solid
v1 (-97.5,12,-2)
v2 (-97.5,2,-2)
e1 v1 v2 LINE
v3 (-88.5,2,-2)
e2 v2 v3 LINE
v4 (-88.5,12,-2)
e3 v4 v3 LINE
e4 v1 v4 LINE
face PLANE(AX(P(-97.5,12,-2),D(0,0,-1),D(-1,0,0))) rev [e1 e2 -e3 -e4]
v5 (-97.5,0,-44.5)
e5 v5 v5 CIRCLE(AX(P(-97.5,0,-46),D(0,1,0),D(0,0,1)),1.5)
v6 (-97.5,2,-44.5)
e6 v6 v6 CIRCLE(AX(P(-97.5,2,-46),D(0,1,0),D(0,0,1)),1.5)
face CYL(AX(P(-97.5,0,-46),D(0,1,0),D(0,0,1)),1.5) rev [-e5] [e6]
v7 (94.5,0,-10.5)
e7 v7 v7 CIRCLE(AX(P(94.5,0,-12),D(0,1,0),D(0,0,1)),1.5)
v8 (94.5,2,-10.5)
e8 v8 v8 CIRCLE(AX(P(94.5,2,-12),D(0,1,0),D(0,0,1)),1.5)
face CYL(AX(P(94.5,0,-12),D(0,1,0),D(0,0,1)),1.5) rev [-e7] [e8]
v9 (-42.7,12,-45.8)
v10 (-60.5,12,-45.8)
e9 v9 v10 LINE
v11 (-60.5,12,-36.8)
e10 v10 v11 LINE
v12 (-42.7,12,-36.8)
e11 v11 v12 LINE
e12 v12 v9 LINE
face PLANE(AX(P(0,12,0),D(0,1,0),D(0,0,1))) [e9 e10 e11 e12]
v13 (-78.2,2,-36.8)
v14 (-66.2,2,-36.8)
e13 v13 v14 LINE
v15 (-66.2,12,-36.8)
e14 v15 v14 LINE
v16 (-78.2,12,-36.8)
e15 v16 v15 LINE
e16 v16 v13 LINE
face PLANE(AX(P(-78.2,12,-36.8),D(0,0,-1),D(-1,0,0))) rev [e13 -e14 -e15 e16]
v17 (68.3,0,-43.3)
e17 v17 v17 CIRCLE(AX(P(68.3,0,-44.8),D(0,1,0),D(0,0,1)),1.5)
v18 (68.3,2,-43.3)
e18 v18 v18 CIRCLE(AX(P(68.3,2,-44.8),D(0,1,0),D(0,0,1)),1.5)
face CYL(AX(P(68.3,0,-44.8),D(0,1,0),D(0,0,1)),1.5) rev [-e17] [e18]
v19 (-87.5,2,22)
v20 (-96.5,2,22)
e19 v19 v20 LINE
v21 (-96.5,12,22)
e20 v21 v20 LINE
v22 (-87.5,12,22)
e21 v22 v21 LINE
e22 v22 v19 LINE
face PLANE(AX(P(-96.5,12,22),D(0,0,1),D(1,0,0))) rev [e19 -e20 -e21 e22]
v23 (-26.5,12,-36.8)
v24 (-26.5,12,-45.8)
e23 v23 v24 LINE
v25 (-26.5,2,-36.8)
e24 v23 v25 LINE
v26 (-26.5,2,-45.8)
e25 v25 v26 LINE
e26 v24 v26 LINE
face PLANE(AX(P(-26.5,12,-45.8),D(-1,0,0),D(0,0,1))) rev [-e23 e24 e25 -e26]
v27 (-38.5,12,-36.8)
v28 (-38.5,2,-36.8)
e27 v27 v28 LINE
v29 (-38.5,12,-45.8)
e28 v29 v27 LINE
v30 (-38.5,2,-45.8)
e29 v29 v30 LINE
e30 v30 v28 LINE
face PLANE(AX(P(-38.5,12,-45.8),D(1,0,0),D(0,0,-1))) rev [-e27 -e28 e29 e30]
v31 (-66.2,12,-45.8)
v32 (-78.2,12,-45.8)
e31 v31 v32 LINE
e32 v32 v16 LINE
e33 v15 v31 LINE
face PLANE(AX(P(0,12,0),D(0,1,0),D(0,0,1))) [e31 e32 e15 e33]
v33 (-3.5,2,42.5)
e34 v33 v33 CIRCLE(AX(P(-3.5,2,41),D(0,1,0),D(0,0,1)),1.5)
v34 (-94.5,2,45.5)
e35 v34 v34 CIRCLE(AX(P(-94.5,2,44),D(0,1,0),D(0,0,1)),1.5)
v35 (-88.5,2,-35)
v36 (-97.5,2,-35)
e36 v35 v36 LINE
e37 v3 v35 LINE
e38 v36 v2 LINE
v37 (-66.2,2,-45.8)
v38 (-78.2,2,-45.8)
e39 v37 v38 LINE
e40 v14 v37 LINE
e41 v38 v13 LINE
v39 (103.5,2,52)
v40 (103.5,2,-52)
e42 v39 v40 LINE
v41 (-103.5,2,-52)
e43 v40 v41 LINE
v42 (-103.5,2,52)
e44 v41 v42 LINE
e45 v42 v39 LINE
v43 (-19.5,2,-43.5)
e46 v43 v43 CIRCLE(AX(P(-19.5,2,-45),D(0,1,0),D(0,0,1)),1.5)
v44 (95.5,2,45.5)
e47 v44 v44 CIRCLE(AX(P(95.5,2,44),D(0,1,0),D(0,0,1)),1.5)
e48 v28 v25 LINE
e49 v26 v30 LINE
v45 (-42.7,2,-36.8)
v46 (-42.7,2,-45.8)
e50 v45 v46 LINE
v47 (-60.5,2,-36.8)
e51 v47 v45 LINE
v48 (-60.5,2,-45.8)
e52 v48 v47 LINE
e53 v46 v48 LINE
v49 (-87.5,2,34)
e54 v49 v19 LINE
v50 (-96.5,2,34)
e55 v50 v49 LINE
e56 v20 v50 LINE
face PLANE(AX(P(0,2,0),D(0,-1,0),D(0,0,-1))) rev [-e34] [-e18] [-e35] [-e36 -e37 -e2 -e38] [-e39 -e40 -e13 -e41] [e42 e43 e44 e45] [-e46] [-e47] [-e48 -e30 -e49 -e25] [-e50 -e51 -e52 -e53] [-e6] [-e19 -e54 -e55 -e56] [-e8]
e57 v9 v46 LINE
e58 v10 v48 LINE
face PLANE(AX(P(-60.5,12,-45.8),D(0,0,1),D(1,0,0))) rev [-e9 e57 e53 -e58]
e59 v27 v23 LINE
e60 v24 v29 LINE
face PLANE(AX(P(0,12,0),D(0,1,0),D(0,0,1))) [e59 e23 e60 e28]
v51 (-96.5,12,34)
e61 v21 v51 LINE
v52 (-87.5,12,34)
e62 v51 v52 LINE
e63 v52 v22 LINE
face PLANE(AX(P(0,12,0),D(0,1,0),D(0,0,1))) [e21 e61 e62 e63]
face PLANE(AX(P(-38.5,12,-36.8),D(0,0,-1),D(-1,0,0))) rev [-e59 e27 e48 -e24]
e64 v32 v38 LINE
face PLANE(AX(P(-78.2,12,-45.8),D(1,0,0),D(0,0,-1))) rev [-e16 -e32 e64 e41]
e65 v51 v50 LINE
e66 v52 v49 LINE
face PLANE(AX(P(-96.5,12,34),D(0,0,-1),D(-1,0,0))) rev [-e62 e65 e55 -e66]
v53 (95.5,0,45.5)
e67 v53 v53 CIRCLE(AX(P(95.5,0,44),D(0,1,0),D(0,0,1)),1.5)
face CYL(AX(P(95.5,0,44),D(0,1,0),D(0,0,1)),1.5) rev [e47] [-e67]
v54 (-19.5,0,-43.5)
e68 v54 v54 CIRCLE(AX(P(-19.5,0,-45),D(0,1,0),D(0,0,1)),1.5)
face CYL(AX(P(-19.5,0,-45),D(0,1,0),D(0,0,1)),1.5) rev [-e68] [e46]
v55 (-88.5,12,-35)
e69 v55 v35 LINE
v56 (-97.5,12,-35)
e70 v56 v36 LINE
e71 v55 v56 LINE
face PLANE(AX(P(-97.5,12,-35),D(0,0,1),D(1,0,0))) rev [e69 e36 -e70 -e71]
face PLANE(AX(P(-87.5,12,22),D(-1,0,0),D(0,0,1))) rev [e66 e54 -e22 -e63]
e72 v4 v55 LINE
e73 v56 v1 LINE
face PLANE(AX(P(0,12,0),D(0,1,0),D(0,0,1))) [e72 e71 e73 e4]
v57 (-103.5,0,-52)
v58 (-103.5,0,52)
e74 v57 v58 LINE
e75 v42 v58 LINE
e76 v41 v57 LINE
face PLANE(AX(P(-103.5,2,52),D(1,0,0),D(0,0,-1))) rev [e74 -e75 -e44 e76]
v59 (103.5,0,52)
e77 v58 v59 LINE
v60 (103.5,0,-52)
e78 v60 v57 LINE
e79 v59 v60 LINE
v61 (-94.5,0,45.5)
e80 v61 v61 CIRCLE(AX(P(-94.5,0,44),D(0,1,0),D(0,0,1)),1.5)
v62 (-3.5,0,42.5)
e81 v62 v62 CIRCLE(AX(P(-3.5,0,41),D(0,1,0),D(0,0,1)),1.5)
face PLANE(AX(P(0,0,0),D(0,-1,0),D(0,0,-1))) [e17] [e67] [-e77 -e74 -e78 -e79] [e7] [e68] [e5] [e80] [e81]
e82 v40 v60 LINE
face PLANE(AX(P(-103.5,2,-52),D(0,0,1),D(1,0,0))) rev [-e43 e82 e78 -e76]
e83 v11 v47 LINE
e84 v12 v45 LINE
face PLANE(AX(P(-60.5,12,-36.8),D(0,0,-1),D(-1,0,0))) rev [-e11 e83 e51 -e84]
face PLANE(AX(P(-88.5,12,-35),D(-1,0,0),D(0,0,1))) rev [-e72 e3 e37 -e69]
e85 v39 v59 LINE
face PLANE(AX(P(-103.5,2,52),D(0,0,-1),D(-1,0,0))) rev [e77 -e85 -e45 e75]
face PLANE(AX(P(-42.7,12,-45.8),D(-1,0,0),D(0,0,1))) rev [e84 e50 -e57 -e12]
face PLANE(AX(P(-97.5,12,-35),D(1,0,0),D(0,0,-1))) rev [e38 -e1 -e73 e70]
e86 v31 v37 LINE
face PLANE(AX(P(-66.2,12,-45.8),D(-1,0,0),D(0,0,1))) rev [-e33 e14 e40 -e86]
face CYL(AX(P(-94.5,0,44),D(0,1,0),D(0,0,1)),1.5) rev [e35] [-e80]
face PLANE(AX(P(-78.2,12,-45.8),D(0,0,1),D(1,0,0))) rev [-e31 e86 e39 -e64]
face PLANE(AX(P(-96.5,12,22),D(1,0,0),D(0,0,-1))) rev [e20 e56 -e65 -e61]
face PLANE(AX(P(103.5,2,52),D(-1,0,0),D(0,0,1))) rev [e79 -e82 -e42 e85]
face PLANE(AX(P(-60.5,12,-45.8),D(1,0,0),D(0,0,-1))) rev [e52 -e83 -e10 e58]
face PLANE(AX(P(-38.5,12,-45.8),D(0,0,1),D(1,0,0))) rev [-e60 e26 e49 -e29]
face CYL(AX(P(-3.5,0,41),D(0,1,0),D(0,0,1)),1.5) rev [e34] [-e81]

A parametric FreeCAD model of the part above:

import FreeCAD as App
import Part
import Sketcher

doc = App.newDocument("Part")
body = doc.addObject("PartDesign::Body", "Body")

sketch1 = doc.addObject("Sketcher::SketchObject", "Sketch")
body.addObject(sketch1)
sketch1.AttachmentSupport = (doc.XZ_Plane, [""])
sketch1.MapMode = "FlatFace"
sketch1.addGeometry([
    Part.LineSegment(App.Vector(-103.5, -52, 0), App.Vector(-103.5, 52, 0)),
    Part.LineSegment(App.Vector(-103.5, 52, 0), App.Vector(103.5, 52, 0)),
    Part.LineSegment(App.Vector(103.5, 52, 0), App.Vector(103.5, -52, 0)),
    Part.LineSegment(App.Vector(103.5, -52, 0), App.Vector(-103.5, -52, 0)),
], False)
sketch1.addConstraint([
    Sketcher.Constraint("Coincident", 0, 2, 1, 1),
    Sketcher.Constraint("Coincident", 1, 2, 2, 1),
    Sketcher.Constraint("Coincident", 2, 2, 3, 1),
    Sketcher.Constraint("Coincident", 3, 2, 0, 1),
    Sketcher.Constraint("Vertical", 0),
    Sketcher.Constraint("Horizontal", 1),
    Sketcher.Constraint("Vertical", 2),
    Sketcher.Constraint("Horizontal", 3),
    Sketcher.Constraint("Symmetric", 0, 2, 2, 2, -1, 1),
    Sketcher.Constraint("DistanceX", 1, 1, 1, 2, 207.0),
    Sketcher.Constraint("DistanceY", 0, 1, 0, 2, 104.0),
])
pad1 = doc.addObject("PartDesign::Pad", "Pad")
body.addObject(pad1)
pad1.Profile = sketch1
pad1.Length = 2
pad1.Reversed = True

sketch2 = doc.addObject("Sketcher::SketchObject", "Sketch001")
body.addObject(sketch2)
sketch2.AttachmentSupport = (doc.XZ_Plane, [""])
sketch2.MapMode = "FlatFace"
sketch2.AttachmentOffset = App.Placement(App.Vector(0, 0, -2), App.Rotation())
sketch2.addGeometry([
    Part.Circle(App.Vector(-97.5, -46, 0), App.Vector(0, 0, 1), 1.5),
    Part.Circle(App.Vector(-19.5, -45, 0), App.Vector(0, 0, 1), 1.5),
    Part.Circle(App.Vector(68.3, -44.8, 0), App.Vector(0, 0, 1), 1.5),
    Part.Circle(App.Vector(94.5, -12, 0), App.Vector(0, 0, 1), 1.5),
    Part.Circle(App.Vector(95.5, 44, 0), App.Vector(0, 0, 1), 1.5),
    Part.Circle(App.Vector(-3.5, 41, 0), App.Vector(0, 0, 1), 1.5),
    Part.Circle(App.Vector(-94.5, 44, 0), App.Vector(0, 0, 1), 1.5),
], False)
sketch2.addConstraint([
    Sketcher.Constraint("Equal", 0, 1),
    Sketcher.Constraint("Equal", 1, 2),
    Sketcher.Constraint("Equal", 2, 3),
    Sketcher.Constraint("Equal", 3, 4),
    Sketcher.Constraint("Equal", 4, 5),
    Sketcher.Constraint("Equal", 5, 6),
    Sketcher.Constraint("Horizontal", 4, 3, 6, 3),
    Sketcher.Constraint("Diameter", 0, 3.0),
    Sketcher.Constraint("DistanceY", 0, 3, -1, 1, 46.0),
    Sketcher.Constraint("DistanceY", 1, 3, -1, 1, 45.0),
    Sketcher.Constraint("DistanceY", 3, 3, -1, 1, 12.0),
    Sketcher.Constraint("DistanceY", -1, 1, 4, 3, 44.0),
    Sketcher.Constraint("DistanceY", -1, 1, 5, 3, 41.0),
    Sketcher.Constraint("DistanceX", 0, 3, 1, 3, 78.0),
    Sketcher.Constraint("DistanceX", 1, 3, 3, 3, 114.0),
    Sketcher.Constraint("DistanceX", 3, 3, 4, 3, 1.0),
    Sketcher.Constraint("DistanceX", 1, 3, 5, 3, 16.0),
    Sketcher.Constraint("DistanceX", 0, 3, 6, 3, 3.0),
    Sketcher.Constraint("DistanceX", 0, 3, -1, 1, 97.5),
    Sketcher.Constraint("DistanceX", -1, 1, 2, 3, 68.3),
    Sketcher.Constraint("DistanceY", 2, 3, -1, 1, 44.8),
])
pocket1 = doc.addObject("PartDesign::Pocket", "Pocket")
body.addObject(pocket1)
pocket1.Profile = sketch2
pocket1.Type = "ThroughAll"
pocket1.Reversed = True

sketch3 = doc.addObject("Sketcher::SketchObject", "Sketch002")
body.addObject(sketch3)
sketch3.AttachmentSupport = (doc.XZ_Plane, [""])
sketch3.MapMode = "FlatFace"
sketch3.AttachmentOffset = App.Placement(App.Vector(0, 0, -2), App.Rotation())
sketch3.addGeometry([
    Part.LineSegment(App.Vector(-97.5, -35, 0), App.Vector(-97.5, -2, 0)),
    Part.LineSegment(App.Vector(-97.5, -2, 0), App.Vector(-88.5, -2, 0)),
    Part.LineSegment(App.Vector(-88.5, -2, 0), App.Vector(-88.5, -35, 0)),
    Part.LineSegment(App.Vector(-88.5, -35, 0), App.Vector(-97.5, -35, 0)),
    Part.LineSegment(App.Vector(-96.5, 22, 0), App.Vector(-96.5, 34, 0)),
    Part.LineSegment(App.Vector(-96.5, 34, 0), App.Vector(-87.5, 34, 0)),
    Part.LineSegment(App.Vector(-87.5, 34, 0), App.Vector(-87.5, 22, 0)),
    Part.LineSegment(App.Vector(-87.5, 22, 0), App.Vector(-96.5, 22, 0)),
    Part.LineSegment(App.Vector(-78.2, -45.8, 0), App.Vector(-78.2, -36.8, 0)),
    Part.LineSegment(App.Vector(-78.2, -36.8, 0), App.Vector(-66.2, -36.8, 0)),
    Part.LineSegment(App.Vector(-66.2, -36.8, 0), App.Vector(-66.2, -45.8, 0)),
    Part.LineSegment(App.Vector(-66.2, -45.8, 0), App.Vector(-78.2, -45.8, 0)),
    Part.LineSegment(App.Vector(-60.5, -45.8, 0), App.Vector(-60.5, -36.8, 0)),
    Part.LineSegment(App.Vector(-60.5, -36.8, 0), App.Vector(-42.7, -36.8, 0)),
    Part.LineSegment(App.Vector(-42.7, -36.8, 0), App.Vector(-42.7, -45.8, 0)),
    Part.LineSegment(App.Vector(-42.7, -45.8, 0), App.Vector(-60.5, -45.8, 0)),
    Part.LineSegment(App.Vector(-38.5, -45.8, 0), App.Vector(-38.5, -36.8, 0)),
    Part.LineSegment(App.Vector(-38.5, -36.8, 0), App.Vector(-26.5, -36.8, 0)),
    Part.LineSegment(App.Vector(-26.5, -36.8, 0), App.Vector(-26.5, -45.8, 0)),
    Part.LineSegment(App.Vector(-26.5, -45.8, 0), App.Vector(-38.5, -45.8, 0)),
], False)
sketch3.addConstraint([
    Sketcher.Constraint("Coincident", 0, 2, 1, 1),
    Sketcher.Constraint("Coincident", 1, 2, 2, 1),
    Sketcher.Constraint("Coincident", 2, 2, 3, 1),
    Sketcher.Constraint("Coincident", 3, 2, 0, 1),
    Sketcher.Constraint("Coincident", 4, 2, 5, 1),
    Sketcher.Constraint("Coincident", 5, 2, 6, 1),
    Sketcher.Constraint("Coincident", 6, 2, 7, 1),
    Sketcher.Constraint("Coincident", 7, 2, 4, 1),
    Sketcher.Constraint("Coincident", 8, 2, 9, 1),
    Sketcher.Constraint("Coincident", 9, 2, 10, 1),
    Sketcher.Constraint("Coincident", 10, 2, 11, 1),
    Sketcher.Constraint("Coincident", 11, 2, 8, 1),
    Sketcher.Constraint("Coincident", 12, 2, 13, 1),
    Sketcher.Constraint("Coincident", 13, 2, 14, 1),
    Sketcher.Constraint("Coincident", 14, 2, 15, 1),
    Sketcher.Constraint("Coincident", 15, 2, 12, 1),
    Sketcher.Constraint("Coincident", 16, 2, 17, 1),
    Sketcher.Constraint("Coincident", 17, 2, 18, 1),
    Sketcher.Constraint("Coincident", 18, 2, 19, 1),
    Sketcher.Constraint("Coincident", 19, 2, 16, 1),
    Sketcher.Constraint("Vertical", 0),
    Sketcher.Constraint("Horizontal", 1),
    Sketcher.Constraint("Vertical", 2),
    Sketcher.Constraint("Horizontal", 3),
    Sketcher.Constraint("Vertical", 4),
    Sketcher.Constraint("Horizontal", 5),
    Sketcher.Constraint("Vertical", 6),
    Sketcher.Constraint("Horizontal", 7),
    Sketcher.Constraint("Vertical", 8),
    Sketcher.Constraint("Horizontal", 9),
    Sketcher.Constraint("Vertical", 10),
    Sketcher.Constraint("Horizontal", 11),
    Sketcher.Constraint("Vertical", 12),
    Sketcher.Constraint("Horizontal", 13),
    Sketcher.Constraint("Vertical", 14),
    Sketcher.Constraint("Horizontal", 15),
    Sketcher.Constraint("Vertical", 16),
    Sketcher.Constraint("Horizontal", 17),
    Sketcher.Constraint("Vertical", 18),
    Sketcher.Constraint("Horizontal", 19),
    Sketcher.Constraint("Horizontal", 9, 2, 12, 2),
    Sketcher.Constraint("Horizontal", 11, 2, 14, 2),
    Sketcher.Constraint("Horizontal", 13, 2, 16, 2),
    Sketcher.Constraint("Horizontal", 15, 2, 18, 2),
    Sketcher.Constraint("Equal", 3, 5),
    Sketcher.Constraint("Equal", 11, 17),
    Sketcher.Constraint("Equal", 19, 4),
    Sketcher.Constraint("Equal", 7, 8),
    Sketcher.Constraint("DistanceX", 1, 1, 1, 2, 9.0),
    Sketcher.Constraint("DistanceX", 9, 1, 9, 2, 12.0),
    Sketcher.Constraint("DistanceY", 0, 1, 0, 2, 33.0),
    Sketcher.Constraint("DistanceX", 13, 1, 13, 2, 17.8),
    Sketcher.Constraint("DistanceY", 0, 2, -1, 1, 2.0),
    Sketcher.Constraint("DistanceY", -1, 1, 4, 2, 34.0),
    Sketcher.Constraint("DistanceX", 0, 2, 4, 2, 1.0),
    Sketcher.Constraint("DistanceX", 2, 2, 12, 2, 28.0),
    Sketcher.Constraint("DistanceX", 12, 2, 16, 2, 22.0),
    Sketcher.Constraint("DistanceX", 0, 2, -1, 1, 97.5),
    Sketcher.Constraint("DistanceX", 8, 2, -1, 1, 78.2),
    Sketcher.Constraint("DistanceY", 8, 2, -1, 1, 36.8),
])
pad2 = doc.addObject("PartDesign::Pad", "Pad001")
body.addObject(pad2)
pad2.Profile = sketch3
pad2.Length = 10
pad2.Reversed = True

doc.recompute()
